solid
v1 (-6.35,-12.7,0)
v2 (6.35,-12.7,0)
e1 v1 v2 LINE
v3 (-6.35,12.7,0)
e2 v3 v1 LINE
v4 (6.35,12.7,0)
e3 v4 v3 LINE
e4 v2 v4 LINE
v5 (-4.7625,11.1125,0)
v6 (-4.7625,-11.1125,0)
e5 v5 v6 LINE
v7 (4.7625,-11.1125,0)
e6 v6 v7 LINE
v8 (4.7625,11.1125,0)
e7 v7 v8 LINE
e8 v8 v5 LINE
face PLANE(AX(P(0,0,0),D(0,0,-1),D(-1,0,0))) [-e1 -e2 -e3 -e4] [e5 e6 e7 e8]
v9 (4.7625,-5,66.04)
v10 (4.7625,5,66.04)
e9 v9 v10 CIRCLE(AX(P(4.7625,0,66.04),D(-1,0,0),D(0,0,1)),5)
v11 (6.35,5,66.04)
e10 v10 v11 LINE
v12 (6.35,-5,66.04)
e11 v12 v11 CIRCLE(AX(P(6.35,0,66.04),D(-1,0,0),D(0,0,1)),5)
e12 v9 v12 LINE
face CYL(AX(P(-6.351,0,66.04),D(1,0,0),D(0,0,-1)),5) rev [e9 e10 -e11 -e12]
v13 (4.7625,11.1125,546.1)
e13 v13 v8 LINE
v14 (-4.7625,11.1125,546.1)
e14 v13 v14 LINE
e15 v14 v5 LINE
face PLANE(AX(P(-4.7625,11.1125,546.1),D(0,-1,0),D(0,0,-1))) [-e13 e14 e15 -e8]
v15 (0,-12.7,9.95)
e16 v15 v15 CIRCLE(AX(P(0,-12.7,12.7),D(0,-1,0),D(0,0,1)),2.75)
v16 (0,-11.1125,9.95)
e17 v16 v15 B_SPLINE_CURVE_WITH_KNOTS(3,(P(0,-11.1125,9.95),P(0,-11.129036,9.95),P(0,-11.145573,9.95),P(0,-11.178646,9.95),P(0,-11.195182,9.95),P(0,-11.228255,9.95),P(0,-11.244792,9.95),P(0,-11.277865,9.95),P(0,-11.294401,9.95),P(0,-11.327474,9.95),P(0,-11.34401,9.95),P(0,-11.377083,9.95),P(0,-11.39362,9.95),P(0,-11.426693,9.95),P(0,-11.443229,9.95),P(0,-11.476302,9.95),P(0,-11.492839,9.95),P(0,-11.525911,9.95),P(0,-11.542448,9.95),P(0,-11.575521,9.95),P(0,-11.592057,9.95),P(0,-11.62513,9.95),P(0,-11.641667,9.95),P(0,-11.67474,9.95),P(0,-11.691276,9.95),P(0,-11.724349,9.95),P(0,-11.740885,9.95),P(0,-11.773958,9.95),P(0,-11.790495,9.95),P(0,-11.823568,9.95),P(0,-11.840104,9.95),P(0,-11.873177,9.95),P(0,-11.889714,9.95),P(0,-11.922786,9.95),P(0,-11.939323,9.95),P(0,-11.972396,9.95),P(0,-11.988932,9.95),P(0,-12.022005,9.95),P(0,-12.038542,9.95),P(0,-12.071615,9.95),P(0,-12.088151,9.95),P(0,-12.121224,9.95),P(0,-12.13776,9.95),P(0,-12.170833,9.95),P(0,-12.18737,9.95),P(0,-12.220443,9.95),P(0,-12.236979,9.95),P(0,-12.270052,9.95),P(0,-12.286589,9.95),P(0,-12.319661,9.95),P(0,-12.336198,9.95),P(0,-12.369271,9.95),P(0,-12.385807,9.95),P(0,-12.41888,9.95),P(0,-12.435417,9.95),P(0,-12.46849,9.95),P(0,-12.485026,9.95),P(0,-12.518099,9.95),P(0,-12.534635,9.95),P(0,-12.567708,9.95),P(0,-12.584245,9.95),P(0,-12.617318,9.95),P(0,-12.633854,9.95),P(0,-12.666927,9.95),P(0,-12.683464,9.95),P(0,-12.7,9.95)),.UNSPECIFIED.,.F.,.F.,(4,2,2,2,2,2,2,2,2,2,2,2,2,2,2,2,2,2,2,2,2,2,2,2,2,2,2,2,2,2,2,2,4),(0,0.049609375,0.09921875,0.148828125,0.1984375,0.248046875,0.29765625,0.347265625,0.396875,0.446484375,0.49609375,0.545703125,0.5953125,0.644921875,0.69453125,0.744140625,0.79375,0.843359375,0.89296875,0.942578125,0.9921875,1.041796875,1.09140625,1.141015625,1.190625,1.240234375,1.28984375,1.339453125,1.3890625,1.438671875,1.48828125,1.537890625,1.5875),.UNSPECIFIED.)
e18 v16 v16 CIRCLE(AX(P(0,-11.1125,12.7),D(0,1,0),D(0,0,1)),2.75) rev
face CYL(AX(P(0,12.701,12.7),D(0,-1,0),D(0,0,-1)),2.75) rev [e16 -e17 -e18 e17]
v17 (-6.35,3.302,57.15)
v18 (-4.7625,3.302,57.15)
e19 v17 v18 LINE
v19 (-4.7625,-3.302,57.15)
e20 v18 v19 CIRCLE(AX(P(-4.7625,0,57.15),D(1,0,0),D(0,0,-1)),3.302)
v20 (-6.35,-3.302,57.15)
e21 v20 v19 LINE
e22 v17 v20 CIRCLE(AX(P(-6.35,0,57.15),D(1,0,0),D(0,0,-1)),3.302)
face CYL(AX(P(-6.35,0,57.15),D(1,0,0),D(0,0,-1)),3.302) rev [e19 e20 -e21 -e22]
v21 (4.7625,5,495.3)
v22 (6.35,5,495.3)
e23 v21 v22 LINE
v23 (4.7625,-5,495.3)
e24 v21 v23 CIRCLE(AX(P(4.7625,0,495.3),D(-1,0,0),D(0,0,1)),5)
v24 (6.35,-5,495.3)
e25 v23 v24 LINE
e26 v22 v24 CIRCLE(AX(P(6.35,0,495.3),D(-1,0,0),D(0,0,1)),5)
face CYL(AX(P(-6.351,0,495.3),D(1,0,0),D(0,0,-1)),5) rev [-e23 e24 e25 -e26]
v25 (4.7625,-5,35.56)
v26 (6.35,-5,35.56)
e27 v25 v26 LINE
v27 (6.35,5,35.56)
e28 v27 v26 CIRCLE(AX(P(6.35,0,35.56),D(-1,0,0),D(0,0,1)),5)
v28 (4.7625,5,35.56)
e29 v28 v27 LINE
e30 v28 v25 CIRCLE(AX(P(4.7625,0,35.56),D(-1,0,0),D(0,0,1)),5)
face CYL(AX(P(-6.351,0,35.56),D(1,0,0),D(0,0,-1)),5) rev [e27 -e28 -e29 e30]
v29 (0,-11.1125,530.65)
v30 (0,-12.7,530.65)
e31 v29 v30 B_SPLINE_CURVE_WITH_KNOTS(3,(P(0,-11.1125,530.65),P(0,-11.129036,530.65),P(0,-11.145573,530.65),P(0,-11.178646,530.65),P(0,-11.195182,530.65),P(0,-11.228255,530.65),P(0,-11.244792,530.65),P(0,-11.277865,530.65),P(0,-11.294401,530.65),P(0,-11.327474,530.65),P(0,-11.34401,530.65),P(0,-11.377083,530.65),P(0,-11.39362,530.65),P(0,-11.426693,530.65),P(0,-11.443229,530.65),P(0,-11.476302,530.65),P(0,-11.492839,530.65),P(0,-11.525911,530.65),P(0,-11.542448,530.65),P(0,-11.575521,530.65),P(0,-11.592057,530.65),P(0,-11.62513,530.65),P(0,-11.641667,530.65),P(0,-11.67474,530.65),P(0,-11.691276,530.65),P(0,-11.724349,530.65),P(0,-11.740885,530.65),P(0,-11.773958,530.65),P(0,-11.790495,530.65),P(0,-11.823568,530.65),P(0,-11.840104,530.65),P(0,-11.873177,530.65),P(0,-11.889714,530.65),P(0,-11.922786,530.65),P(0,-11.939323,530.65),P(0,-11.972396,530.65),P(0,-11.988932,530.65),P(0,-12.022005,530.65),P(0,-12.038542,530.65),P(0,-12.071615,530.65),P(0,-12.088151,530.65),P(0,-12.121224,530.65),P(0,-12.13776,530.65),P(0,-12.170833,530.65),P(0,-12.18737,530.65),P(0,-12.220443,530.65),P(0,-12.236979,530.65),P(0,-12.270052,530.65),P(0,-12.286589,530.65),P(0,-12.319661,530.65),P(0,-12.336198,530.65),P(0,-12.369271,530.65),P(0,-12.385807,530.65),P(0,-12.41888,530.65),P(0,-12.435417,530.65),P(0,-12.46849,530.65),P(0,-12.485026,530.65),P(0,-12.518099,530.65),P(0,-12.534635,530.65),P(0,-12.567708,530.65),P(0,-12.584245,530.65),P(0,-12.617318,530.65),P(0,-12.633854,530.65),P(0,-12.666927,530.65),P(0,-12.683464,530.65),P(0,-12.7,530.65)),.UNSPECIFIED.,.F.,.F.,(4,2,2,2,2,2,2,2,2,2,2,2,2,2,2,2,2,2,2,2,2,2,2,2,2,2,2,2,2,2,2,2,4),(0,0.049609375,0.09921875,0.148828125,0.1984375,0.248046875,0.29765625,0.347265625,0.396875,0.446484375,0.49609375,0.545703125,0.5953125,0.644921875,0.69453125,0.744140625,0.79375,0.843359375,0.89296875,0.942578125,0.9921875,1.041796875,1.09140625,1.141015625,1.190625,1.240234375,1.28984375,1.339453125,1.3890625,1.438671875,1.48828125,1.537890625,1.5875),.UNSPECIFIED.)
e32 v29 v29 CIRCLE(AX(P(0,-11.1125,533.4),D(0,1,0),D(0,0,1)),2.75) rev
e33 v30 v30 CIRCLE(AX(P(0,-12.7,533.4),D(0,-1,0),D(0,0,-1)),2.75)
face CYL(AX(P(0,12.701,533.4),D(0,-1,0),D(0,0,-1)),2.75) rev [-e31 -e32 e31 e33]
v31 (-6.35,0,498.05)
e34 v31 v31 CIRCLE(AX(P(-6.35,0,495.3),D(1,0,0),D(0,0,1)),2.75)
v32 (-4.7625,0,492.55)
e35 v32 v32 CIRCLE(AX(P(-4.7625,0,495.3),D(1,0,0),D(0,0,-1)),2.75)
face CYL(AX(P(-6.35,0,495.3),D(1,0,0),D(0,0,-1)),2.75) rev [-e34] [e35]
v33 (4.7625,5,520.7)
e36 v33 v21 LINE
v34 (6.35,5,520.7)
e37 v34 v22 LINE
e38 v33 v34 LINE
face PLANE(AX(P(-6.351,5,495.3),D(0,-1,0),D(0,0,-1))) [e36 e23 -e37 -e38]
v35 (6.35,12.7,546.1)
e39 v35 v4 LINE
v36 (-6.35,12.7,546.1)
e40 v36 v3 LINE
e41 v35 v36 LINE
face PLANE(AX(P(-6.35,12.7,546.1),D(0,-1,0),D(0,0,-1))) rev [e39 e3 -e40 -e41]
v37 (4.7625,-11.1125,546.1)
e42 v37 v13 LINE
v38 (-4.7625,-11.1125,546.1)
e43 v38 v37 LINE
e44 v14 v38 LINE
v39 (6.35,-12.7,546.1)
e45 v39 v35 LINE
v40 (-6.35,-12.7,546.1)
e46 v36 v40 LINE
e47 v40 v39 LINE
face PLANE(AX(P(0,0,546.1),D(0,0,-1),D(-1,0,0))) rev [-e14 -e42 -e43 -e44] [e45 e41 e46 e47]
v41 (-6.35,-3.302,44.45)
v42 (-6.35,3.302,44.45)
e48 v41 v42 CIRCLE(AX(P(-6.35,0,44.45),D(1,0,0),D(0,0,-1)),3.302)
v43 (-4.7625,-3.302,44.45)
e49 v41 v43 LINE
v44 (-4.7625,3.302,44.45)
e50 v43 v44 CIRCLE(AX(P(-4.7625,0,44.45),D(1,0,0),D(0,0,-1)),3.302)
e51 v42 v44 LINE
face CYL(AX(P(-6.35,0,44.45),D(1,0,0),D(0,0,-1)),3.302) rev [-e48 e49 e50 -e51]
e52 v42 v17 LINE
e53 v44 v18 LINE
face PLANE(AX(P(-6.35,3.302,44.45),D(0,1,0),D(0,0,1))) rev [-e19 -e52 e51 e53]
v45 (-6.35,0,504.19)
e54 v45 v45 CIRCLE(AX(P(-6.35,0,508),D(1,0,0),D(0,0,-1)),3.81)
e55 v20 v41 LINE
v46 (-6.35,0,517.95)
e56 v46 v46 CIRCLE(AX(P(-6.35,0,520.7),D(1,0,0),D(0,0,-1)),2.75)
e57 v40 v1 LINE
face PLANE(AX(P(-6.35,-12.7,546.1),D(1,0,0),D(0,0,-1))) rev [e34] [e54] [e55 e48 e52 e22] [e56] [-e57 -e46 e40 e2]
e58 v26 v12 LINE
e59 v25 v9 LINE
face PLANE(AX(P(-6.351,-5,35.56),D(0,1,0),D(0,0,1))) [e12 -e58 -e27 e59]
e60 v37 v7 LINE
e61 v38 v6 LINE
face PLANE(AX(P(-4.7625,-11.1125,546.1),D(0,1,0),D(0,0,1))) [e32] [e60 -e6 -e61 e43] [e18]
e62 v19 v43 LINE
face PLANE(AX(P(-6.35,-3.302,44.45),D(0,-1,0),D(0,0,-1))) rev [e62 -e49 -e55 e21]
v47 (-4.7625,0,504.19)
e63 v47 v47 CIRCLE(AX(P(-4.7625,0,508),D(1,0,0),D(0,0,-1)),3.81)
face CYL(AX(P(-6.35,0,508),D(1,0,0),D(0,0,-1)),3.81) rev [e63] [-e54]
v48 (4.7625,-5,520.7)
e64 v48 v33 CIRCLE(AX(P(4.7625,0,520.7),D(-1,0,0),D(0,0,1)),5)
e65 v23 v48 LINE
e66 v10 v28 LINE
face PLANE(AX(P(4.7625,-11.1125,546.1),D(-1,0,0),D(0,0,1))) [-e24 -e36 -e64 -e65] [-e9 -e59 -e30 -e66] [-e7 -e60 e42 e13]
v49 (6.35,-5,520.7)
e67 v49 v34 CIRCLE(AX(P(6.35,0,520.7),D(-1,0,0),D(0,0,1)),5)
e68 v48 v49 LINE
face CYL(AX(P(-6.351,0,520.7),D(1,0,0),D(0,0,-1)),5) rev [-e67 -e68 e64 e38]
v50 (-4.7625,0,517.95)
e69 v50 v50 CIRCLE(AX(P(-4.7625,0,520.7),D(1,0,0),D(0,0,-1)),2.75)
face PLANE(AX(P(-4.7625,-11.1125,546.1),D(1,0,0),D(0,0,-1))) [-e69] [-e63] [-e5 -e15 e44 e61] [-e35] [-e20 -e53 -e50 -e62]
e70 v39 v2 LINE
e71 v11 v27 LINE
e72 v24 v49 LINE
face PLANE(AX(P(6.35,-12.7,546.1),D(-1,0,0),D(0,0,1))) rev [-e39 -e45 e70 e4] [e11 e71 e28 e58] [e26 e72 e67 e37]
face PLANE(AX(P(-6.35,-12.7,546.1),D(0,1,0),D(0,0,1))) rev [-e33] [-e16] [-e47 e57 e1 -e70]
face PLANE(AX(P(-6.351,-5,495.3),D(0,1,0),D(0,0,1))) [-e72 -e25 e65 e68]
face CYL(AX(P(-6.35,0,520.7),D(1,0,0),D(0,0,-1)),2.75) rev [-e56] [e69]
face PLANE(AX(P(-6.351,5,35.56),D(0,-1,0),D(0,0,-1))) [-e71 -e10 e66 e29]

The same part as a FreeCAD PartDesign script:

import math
import FreeCAD as App
import Part
import Sketcher
from FreeCAD import Vector
Q = App.Units.Quantity


def add_polygon(sketch, points):
    """Adds a closed chain of lines whose ends are joined by coincident constraints."""
    first, n = sketch.GeometryCount, len(points)
    for a, b in zip(points, points[1:] + points[:1]):
        sketch.addGeometry(Part.LineSegment(App.Vector(*a, 0), App.Vector(*b, 0)), False)
    for i in range(n):
        sketch.addConstraint(Sketcher.Constraint("Coincident", first + i, 2, first + (i + 1) % n, 1))

doc = App.newDocument("Part")
body = doc.addObject("PartDesign::Body", "Body")

# Sketch on XY plane
sketch1 = body.newObject("Sketcher::SketchObject", "Sketch")
sketch1.AttachmentSupport = (doc.getObject("XY_Plane"), [""])
sketch1.MapMode = "FlatFace"
add_polygon(sketch1, [(-6.35, 12.7), (-6.35, -12.7), (6.35, -12.7), (6.35, 12.7)])  # lines 0-3
add_polygon(sketch1, [(4.7625, -11.1125), (-4.7625, -11.1125), (-4.7625, 11.1125), (4.7625, 11.1125)])  # lines 4-7
sketch1.addConstraint(Sketcher.Constraint("Vertical", 0))
sketch1.addConstraint(Sketcher.Constraint("Horizontal", 1))
sketch1.addConstraint(Sketcher.Constraint("Vertical", 2))
sketch1.addConstraint(Sketcher.Constraint("Horizontal", 3))
sketch1.addConstraint(Sketcher.Constraint("Horizontal", 4))
sketch1.addConstraint(Sketcher.Constraint("Vertical", 5))
sketch1.addConstraint(Sketcher.Constraint("Horizontal", 6))
sketch1.addConstraint(Sketcher.Constraint("Vertical", 7))
sketch1.addConstraint(Sketcher.Constraint("Symmetric", 0, 2, 2, 2, -1, 1))
sketch1.addConstraint(Sketcher.Constraint("Symmetric", 4, 2, 6, 2, -1, 1))
sketch1.addConstraint(Sketcher.Constraint("DistanceY", 0, 2, 0, 1, Q("1 in")))
sketch1.addConstraint(Sketcher.Constraint("DistanceX", 1, 1, 1, 2, Q("0.5 in")))
sketch1.addConstraint(Sketcher.Constraint("DistanceX", 4, 2, 4, 1, Q("0.375 in")))
sketch1.addConstraint(Sketcher.Constraint("DistanceY", 5, 1, 5, 2, Q("0.875 in")))
pad1 = body.newObject("PartDesign::Pad", "Pad")
pad1.Profile = sketch1
pad1.Length = Q("21.5 in")

# Sketch on YZ plane
sketch2 = body.newObject("Sketcher::SketchObject", "Sketch001")
sketch2.AttachmentSupport = (doc.getObject("YZ_Plane"), [""])
sketch2.MapMode = "FlatFace"
sketch2.AttachmentOffset = App.Placement(Vector(0, 0, 0.25 * 25.4), App.Rotation())
sketch2.addGeometry(Part.Circle(Vector(0, 508, 0), Vector(0, 0, 1), 3.81), False)
sketch2.addGeometry(Part.Circle(Vector(0, 520.7, 0), Vector(0, 0, 1), 2.75), False)
sketch2.addGeometry(Part.Circle(Vector(0, 495.3, 0), Vector(0, 0, 1), 2.75), False)
sketch2.addGeometry(Part.LineSegment(Vector(-3.302, 57.15, 0), Vector(-3.302, 44.45, 0)), False)
sketch2.addGeometry(Part.ArcOfCircle(Part.Circle(Vector(0, 44.45, 0), Vector(0, 0, 1), 3.302), math.radians(180), math.radians(360)), False)
sketch2.addGeometry(Part.LineSegment(Vector(3.302, 44.45, 0), Vector(3.302, 57.15, 0)), False)
sketch2.addGeometry(Part.ArcOfCircle(Part.Circle(Vector(0, 57.15, 0), Vector(0, 0, 1), 3.302), math.radians(0), math.radians(180)), False)
sketch2.addConstraint(Sketcher.Constraint("Tangent", 3, 2, 4, 1))
sketch2.addConstraint(Sketcher.Constraint("Tangent", 4, 2, 5, 1))
sketch2.addConstraint(Sketcher.Constraint("Tangent", 5, 2, 6, 1))
sketch2.addConstraint(Sketcher.Constraint("Tangent", 6, 2, 3, 1))
sketch2.addConstraint(Sketcher.Constraint("Vertical", 3))
sketch2.addConstraint(Sketcher.Constraint("Vertical", 5))
sketch2.addConstraint(Sketcher.Constraint("Equal", 1, 2))
sketch2.addConstraint(Sketcher.Constraint("PointOnObject", 0, 3, -2))
sketch2.addConstraint(Sketcher.Constraint("PointOnObject", 1, 3, -2))
sketch2.addConstraint(Sketcher.Constraint("PointOnObject", 2, 3, -2))
sketch2.addConstraint(Sketcher.Constraint("PointOnObject", 4, 3, -2))
sketch2.addConstraint(Sketcher.Constraint("Diameter", 0, Q("0.3 in")))
sketch2.addConstraint(Sketcher.Constraint("Radius", 4, Q("0.13 in")))
sketch2.addConstraint(Sketcher.Constraint("DistanceY", 3, 2, 3, 1, Q("0.5 in")))
sketch2.addConstraint(Sketcher.Constraint("DistanceY", -1, 1, 0, 3, Q("20 in")))
sketch2.addConstraint(Sketcher.Constraint("DistanceY", 2, 3, 1, 3, Q("1 in")))
sketch2.addConstraint(Sketcher.Constraint("DistanceY", -1, 1, 1, 3, Q("20.5 in")))
sketch2.addConstraint(Sketcher.Constraint("Diameter", 1, 5.5))
sketch2.addConstraint(Sketcher.Constraint("DistanceY", -1, 1, 4, 3, Q("1.75 in")))
pocket1 = body.newObject("PartDesign::Pocket", "Pocket")
pocket1.Profile = sketch2
pocket1.Type = "ThroughAll"

# Sketch on YZ plane
sketch3 = body.newObject("Sketcher::SketchObject", "Sketch002")
sketch3.AttachmentSupport = (doc.getObject("YZ_Plane"), [""])
sketch3.MapMode = "FlatFace"
sketch3.AttachmentOffset = App.Placement(Vector(0, 0, 0.25 * 25.4), App.Rotation())
sketch3.addGeometry(Part.LineSegment(Vector(5, 66.04, 0), Vector(5, 35.56, 0)), False)
sketch3.addGeometry(Part.ArcOfCircle(Part.Circle(Vector(0, 35.56, 0), Vector(0, 0, 1), 5), math.radians(180), math.radians(360)), False)
sketch3.addGeometry(Part.LineSegment(Vector(-5, 35.56, 0), Vector(-5, 66.04, 0)), False)
sketch3.addGeometry(Part.ArcOfCircle(Part.Circle(Vector(0, 66.04, 0), Vector(0, 0, 1), 5), math.radians(0), math.radians(180)), False)
sketch3.addConstraint(Sketcher.Constraint("Tangent", 0, 2, 1, 2))
sketch3.addConstraint(Sketcher.Constraint("Tangent", 1, 1, 2, 1))
sketch3.addConstraint(Sketcher.Constraint("Tangent", 2, 2, 3, 2))
sketch3.addConstraint(Sketcher.Constraint("Tangent", 3, 1, 0, 1))
sketch3.addConstraint(Sketcher.Constraint("Vertical", 0))
sketch3.addConstraint(Sketcher.Constraint("Vertical", 2))
sketch3.addConstraint(Sketcher.Constraint("PointOnObject", 1, 3, -2))
sketch3.addConstraint(Sketcher.Constraint("DistanceY", 0, 2, 0, 1, Q("1.2 in")))
sketch3.addConstraint(Sketcher.Constraint("DistanceY", -1, 1, 1, 3, Q("1.4 in")))
sketch3.addConstraint(Sketcher.Constraint("Radius", 1, 5.0))
pocket2 = body.newObject("PartDesign::Pocket", "Pocket001")
pocket2.Profile = sketch3
pocket2.Length = Q("0.0625 in")

# Sketch on YZ plane
sketch4 = body.newObject("Sketcher::SketchObject", "Sketch003")
sketch4.AttachmentSupport = (doc.getObject("YZ_Plane"), [""])
sketch4.MapMode = "FlatFace"
sketch4.AttachmentOffset = App.Placement(Vector(0, 0, 0.25 * 25.4), App.Rotation())
sketch4.addGeometry(Part.LineSegment(Vector(5, 520.7, 0), Vector(5, 495.3, 0)), False)
sketch4.addGeometry(Part.ArcOfCircle(Part.Circle(Vector(0, 495.3, 0), Vector(0, 0, 1), 5), math.radians(180), math.radians(360)), False)
sketch4.addGeometry(Part.LineSegment(Vector(-5, 495.3, 0), Vector(-5, 520.7, 0)), False)
sketch4.addGeometry(Part.ArcOfCircle(Part.Circle(Vector(0, 520.7, 0), Vector(0, 0, 1), 5), math.radians(0), math.radians(180)), False)
sketch4.addConstraint(Sketcher.Constraint("Tangent", 0, 2, 1, 2))
sketch4.addConstraint(Sketcher.Constraint("Tangent", 1, 1, 2, 1))
sketch4.addConstraint(Sketcher.Constraint("Tangent", 2, 2, 3, 2))
sketch4.addConstraint(Sketcher.Constraint("Tangent", 3, 1, 0, 1))
sketch4.addConstraint(Sketcher.Constraint("Vertical", 0))
sketch4.addConstraint(Sketcher.Constraint("Vertical", 2))
sketch4.addConstraint(Sketcher.Constraint("PointOnObject", 1, 3, -2))
sketch4.addConstraint(Sketcher.Constraint("DistanceY", 0, 2, 0, 1, Q("1 in")))
sketch4.addConstraint(Sketcher.Constraint("DistanceY", -1, 1, 1, 3, Q("19.5 in")))
sketch4.addConstraint(Sketcher.Constraint("Radius", 1, 5.0))
pocket3 = body.newObject("PartDesign::Pocket", "Pocket002")
pocket3.Profile = sketch4
pocket3.Length = Q("0.0625 in")

# Sketch on XZ plane
sketch5 = body.newObject("Sketcher::SketchObject", "Sketch004")
sketch5.AttachmentSupport = (doc.getObject("XZ_Plane"), [""])
sketch5.MapMode = "FlatFace"
sketch5.AttachmentOffset = App.Placement(Vector(0, 0, 0.5 * 25.4), App.Rotation())
sketch5.addGeometry(Part.Circle(Vector(0, 533.4, 0), Vector(0, 0, 1), 2.75), False)
sketch5.addConstraint(Sketcher.Constraint("PointOnObject", 0, 3, -2))
sketch5.addConstraint(Sketcher.Constraint("DistanceY", -1, 1, 0, 3, Q("21 in")))
sketch5.addConstraint(Sketcher.Constraint("Diameter", 0, 5.5))
pocket4 = body.newObject("PartDesign::Pocket", "Pocket003")
pocket4.Profile = sketch5
pocket4.Type = "UpToFirst"

# Sketch on XZ plane
sketch6 = body.newObject("Sketcher::SketchObject", "Sketch005")
sketch6.AttachmentSupport = (doc.getObject("XZ_Plane"), [""])
sketch6.MapMode = "FlatFace"
sketch6.AttachmentOffset = App.Placement(Vector(0, 0, 0.5 * 25.4), App.Rotation())
sketch6.addGeometry(Part.Circle(Vector(0, 12.7, 0), Vector(0, 0, 1), 2.75), False)
sketch6.addConstraint(Sketcher.Constraint("PointOnObject", 0, 3, -2))
sketch6.addConstraint(Sketcher.Constraint("DistanceY", -1, 1, 0, 3, Q("0.5 in")))
sketch6.addConstraint(Sketcher.Constraint("Diameter", 0, 5.5))
pocket5 = body.newObject("PartDesign::Pocket", "Pocket004")
pocket5.Profile = sketch6
pocket5.Type = "UpToFirst"

doc.recompute()
